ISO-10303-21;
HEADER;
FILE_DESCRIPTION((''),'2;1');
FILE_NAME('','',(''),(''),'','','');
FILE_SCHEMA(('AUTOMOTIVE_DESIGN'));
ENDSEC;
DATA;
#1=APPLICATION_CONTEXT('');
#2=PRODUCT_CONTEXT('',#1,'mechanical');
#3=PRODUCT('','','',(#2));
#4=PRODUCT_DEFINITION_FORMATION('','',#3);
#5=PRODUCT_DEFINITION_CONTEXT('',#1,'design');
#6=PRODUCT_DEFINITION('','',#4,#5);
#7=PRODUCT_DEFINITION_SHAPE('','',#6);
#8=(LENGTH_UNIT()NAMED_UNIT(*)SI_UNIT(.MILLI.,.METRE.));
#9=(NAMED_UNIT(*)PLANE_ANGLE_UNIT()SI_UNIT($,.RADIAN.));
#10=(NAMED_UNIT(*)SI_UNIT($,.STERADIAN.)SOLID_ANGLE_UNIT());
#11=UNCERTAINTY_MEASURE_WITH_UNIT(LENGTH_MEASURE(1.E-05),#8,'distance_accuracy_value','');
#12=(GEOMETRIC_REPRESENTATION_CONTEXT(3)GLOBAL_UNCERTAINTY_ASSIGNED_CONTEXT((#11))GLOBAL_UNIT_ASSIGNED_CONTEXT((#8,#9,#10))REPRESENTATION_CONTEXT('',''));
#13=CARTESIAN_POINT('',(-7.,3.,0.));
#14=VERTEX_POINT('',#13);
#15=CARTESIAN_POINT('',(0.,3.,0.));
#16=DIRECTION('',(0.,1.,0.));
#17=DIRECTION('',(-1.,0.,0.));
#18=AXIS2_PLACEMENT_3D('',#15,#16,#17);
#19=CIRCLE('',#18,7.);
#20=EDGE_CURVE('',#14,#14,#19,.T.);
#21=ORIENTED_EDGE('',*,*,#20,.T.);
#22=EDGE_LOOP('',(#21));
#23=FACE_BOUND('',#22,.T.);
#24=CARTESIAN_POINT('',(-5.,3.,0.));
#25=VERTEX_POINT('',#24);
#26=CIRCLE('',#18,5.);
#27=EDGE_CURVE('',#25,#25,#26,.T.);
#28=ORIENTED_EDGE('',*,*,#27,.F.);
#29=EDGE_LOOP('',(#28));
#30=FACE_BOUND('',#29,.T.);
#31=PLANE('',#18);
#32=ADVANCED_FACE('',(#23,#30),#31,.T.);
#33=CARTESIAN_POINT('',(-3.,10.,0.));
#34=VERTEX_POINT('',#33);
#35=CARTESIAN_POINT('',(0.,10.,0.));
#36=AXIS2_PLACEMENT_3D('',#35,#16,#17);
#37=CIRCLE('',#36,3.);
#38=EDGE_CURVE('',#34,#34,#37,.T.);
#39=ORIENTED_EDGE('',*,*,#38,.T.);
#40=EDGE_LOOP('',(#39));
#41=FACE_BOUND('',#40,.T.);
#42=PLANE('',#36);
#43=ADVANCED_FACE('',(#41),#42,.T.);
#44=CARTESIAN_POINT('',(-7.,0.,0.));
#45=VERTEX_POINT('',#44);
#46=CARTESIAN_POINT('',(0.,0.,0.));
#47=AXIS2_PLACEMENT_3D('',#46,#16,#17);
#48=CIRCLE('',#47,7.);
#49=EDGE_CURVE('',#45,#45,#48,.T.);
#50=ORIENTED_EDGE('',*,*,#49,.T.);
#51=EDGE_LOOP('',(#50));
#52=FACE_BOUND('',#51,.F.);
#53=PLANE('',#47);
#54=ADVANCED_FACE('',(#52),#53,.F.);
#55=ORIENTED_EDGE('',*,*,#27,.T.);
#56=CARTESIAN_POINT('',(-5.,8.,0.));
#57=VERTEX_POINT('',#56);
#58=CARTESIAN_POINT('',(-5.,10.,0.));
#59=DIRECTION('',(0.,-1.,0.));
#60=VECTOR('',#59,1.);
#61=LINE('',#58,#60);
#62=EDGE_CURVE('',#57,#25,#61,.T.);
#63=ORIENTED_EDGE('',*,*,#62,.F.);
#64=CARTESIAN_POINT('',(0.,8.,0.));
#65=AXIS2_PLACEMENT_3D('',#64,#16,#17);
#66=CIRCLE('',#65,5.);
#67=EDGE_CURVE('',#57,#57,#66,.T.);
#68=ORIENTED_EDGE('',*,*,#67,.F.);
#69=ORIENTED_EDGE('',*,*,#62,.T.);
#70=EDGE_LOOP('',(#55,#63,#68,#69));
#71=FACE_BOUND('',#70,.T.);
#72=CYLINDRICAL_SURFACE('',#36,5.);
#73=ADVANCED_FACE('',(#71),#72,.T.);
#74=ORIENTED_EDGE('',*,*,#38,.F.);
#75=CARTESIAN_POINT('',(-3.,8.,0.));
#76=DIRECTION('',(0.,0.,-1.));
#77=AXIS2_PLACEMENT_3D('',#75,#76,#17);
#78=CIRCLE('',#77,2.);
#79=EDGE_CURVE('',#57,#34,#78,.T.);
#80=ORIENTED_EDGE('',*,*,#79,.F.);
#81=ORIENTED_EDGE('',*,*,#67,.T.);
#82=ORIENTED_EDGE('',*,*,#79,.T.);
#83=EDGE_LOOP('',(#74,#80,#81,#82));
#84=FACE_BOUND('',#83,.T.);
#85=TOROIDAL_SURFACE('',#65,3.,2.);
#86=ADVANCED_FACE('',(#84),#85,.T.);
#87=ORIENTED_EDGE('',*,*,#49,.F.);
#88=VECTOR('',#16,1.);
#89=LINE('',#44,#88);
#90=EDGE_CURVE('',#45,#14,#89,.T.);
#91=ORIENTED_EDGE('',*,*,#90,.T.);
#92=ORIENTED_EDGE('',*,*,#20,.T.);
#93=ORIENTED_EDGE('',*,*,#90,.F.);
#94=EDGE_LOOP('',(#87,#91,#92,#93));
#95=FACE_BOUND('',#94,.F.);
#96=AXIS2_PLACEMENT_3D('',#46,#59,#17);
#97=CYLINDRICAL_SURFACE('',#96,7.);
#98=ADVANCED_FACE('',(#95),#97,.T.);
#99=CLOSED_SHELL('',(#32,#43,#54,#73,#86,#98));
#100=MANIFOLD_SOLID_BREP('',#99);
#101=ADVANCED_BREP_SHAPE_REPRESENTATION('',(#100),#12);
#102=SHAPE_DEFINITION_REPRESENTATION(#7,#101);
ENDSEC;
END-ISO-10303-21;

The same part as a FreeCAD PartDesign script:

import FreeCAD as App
import Part
import Sketcher

V = App.Vector


def edges_at(feature, points):
    """Names of the edges that pass closest to the given points."""
    edges = feature.Shape.Edges
    near = lambda p: min(range(len(edges)), key=lambda i: edges[i].distToShape(Part.Vertex(*p))[0])
    return sorted({f"Edge{near(p) + 1}" for p in points})

doc = App.newDocument("Part")
body = doc.addObject("PartDesign::Body", "Body")

# Sketch on XZ plane
sketch1 = body.newObject("Sketcher::SketchObject", "Sketch")
sketch1.AttachmentSupport = (doc.getObject("XZ_Plane"), [""])
sketch1.MapMode = "FlatFace"
sketch1.addGeometry(Part.Circle(V(0, 0, 0), V(0, 0, 1), 7), False)
sketch1.addConstraint([
    Sketcher.Constraint("Coincident", 0, 3, -1, 1),
    Sketcher.Constraint("Diameter", 0, 14.0),
])
pad1 = body.newObject("PartDesign::Pad", "Pad")
pad1.Profile = sketch1
pad1.Length = 10

# Sketch on XZ plane
sketch2 = body.newObject("Sketcher::SketchObject", "Sketch001")
sketch2.AttachmentSupport = (doc.getObject("XZ_Plane"), [""])
sketch2.MapMode = "FlatFace"
sketch2.AttachmentOffset = App.Placement(V(0, 0, 10), App.Rotation())
sketch2.addGeometry([
    Part.Circle(V(0, 0, 0), V(0, 0, 1), 7),
    Part.Circle(V(0, 0, 0), V(0, 0, 1), 5),
], False)
sketch2.addConstraint([
    Sketcher.Constraint("Coincident", 0, 3, -1, 1),
    Sketcher.Constraint("Coincident", 1, 3, -1, 1),
    Sketcher.Constraint("Diameter", 0, 14.0),
    Sketcher.Constraint("Diameter", 1, 10.0),
])
pocket1 = body.newObject("PartDesign::Pocket", "Pocket")
pocket1.Profile = sketch2
pocket1.Length = 7
doc.recompute()

fillet = body.newObject("PartDesign::Fillet", "Fillet")
fillet.Base = (pocket1, edges_at(pocket1, [(-5, -10, 0)]))
fillet.Radius = 2
body2 = doc.addObject("PartDesign::Body", "Body001")
doc.recompute()

body.Placement = App.Placement(V(0, 0, 0), App.Rotation(V(0, 0, 1), 180))
boolean = body2.newObject("PartDesign::Boolean", "Boolean")
boolean.Type = "Fuse"
boolean.addObjects([body])

doc.recompute()
